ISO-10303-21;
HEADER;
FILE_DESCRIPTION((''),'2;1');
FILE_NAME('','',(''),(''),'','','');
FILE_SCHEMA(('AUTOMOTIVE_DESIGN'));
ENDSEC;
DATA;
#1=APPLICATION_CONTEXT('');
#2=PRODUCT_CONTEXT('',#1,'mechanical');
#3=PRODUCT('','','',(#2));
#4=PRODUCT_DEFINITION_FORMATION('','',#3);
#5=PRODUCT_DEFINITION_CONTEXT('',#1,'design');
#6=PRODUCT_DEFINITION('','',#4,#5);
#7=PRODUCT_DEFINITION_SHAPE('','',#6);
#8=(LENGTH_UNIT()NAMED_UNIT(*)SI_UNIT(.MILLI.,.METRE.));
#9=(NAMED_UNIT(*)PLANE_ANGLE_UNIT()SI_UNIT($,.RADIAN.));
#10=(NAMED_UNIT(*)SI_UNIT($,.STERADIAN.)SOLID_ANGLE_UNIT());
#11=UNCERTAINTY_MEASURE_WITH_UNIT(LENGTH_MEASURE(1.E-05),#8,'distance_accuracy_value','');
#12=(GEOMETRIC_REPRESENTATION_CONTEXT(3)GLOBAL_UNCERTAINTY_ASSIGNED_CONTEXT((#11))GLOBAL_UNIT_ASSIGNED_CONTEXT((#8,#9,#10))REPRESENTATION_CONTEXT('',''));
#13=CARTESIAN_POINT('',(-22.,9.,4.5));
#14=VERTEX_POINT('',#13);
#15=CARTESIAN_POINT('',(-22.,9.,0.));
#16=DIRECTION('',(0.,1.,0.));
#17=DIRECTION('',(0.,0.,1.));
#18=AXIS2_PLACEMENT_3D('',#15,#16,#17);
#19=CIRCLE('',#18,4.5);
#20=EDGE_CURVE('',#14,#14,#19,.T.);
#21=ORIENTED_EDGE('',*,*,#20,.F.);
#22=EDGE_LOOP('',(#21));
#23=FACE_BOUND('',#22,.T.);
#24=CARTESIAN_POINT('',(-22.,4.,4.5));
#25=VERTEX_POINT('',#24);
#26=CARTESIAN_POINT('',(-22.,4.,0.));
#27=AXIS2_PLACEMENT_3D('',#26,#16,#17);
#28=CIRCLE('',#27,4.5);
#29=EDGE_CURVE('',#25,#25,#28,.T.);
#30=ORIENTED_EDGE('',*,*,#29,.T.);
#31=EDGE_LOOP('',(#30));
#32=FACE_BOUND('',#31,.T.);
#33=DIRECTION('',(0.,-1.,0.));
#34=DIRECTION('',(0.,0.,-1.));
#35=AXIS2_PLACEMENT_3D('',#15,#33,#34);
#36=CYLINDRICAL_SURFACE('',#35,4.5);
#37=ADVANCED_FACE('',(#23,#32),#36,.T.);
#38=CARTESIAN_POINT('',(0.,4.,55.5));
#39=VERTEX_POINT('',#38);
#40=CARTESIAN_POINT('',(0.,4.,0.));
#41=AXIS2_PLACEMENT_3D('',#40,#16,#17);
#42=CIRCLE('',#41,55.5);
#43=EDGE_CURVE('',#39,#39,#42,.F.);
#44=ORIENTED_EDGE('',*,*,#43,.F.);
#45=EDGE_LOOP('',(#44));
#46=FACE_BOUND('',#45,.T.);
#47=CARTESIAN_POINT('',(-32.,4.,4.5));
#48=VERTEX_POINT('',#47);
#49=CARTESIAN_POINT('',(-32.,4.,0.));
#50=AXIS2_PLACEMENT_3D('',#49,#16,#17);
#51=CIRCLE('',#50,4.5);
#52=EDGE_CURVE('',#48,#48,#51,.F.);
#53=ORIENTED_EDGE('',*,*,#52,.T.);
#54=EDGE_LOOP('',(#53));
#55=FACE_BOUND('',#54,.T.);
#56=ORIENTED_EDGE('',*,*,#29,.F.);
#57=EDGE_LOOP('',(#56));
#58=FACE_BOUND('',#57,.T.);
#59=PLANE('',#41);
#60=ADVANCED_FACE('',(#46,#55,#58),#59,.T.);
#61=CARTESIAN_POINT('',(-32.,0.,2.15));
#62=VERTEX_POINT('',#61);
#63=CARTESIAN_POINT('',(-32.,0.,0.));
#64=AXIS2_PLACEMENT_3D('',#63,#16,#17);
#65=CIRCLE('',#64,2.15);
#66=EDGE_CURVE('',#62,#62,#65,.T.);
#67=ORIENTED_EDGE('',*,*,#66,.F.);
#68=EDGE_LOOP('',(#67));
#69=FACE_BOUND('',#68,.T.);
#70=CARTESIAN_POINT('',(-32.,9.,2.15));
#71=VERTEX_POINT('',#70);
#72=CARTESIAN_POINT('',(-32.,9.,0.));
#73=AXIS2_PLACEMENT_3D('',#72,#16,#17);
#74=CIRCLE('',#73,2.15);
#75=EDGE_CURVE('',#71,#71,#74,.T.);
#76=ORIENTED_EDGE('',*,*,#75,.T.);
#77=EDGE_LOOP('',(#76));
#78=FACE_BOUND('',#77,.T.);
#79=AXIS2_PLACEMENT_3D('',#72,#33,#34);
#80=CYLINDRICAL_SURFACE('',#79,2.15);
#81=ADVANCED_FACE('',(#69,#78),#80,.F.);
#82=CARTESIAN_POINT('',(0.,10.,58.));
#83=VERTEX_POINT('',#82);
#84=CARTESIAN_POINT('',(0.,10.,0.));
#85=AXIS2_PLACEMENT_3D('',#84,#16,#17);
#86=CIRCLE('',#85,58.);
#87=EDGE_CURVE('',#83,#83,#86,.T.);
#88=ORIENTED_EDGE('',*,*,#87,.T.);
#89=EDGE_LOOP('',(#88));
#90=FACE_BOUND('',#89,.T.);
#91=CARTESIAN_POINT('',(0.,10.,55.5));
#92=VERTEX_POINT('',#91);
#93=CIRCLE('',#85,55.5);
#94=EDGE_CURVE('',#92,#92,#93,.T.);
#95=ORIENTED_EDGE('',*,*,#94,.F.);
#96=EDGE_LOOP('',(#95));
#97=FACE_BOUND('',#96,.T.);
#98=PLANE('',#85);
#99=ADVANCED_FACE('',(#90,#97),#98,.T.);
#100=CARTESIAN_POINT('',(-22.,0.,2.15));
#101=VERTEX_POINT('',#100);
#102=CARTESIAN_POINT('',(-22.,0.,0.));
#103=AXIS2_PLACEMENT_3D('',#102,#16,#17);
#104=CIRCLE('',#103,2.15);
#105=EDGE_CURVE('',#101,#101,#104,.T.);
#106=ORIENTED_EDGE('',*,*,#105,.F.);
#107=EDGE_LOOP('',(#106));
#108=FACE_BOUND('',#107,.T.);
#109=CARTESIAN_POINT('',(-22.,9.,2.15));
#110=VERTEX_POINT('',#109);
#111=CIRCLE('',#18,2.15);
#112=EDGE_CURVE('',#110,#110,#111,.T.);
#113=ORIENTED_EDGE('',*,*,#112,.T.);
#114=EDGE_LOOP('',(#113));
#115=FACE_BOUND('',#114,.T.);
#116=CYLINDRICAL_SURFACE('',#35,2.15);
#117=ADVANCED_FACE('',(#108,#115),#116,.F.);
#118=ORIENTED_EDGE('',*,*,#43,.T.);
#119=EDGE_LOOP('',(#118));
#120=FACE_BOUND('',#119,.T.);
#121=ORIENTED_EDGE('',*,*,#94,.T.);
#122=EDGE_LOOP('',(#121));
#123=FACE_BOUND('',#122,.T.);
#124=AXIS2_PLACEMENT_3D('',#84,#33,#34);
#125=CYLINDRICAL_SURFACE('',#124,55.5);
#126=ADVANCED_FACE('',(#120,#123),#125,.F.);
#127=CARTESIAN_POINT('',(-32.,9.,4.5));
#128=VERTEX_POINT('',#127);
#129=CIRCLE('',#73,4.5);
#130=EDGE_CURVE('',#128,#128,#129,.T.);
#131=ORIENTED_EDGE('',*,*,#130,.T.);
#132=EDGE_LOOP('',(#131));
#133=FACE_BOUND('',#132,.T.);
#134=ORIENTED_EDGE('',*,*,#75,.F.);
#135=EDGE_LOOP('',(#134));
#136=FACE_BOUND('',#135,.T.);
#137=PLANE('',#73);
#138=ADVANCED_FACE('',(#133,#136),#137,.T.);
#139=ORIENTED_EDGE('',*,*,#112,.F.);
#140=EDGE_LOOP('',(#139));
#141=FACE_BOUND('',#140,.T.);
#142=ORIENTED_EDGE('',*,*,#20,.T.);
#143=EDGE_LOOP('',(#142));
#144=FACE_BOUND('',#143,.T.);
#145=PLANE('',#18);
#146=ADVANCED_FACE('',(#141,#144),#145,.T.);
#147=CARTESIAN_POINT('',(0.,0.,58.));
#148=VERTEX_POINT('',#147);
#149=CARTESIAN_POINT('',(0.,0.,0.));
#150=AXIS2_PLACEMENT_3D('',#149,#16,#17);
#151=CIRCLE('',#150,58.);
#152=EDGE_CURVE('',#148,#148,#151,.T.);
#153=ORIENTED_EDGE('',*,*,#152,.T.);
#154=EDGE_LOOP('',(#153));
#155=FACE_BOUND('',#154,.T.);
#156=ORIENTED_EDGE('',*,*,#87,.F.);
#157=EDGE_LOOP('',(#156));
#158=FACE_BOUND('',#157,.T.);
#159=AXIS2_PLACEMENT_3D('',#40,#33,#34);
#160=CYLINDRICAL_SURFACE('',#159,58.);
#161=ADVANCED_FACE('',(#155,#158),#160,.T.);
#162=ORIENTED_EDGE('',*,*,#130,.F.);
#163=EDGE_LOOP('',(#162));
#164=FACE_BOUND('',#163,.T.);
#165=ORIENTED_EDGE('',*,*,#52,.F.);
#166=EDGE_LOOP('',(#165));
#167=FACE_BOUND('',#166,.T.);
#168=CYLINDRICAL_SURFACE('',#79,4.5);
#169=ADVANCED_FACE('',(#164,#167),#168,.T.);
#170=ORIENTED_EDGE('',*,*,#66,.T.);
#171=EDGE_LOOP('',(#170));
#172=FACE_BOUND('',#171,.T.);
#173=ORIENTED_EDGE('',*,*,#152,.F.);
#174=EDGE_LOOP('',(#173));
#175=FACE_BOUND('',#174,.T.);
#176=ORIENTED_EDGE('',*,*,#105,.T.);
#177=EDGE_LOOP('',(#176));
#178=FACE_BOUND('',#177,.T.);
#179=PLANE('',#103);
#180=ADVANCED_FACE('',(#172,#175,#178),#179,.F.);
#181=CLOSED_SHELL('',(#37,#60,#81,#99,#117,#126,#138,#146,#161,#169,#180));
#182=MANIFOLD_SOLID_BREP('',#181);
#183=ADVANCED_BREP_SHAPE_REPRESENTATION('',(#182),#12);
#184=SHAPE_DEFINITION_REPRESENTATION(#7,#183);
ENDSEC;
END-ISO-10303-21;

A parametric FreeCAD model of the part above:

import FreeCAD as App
import Part
import Sketcher

V = App.Vector

doc = App.newDocument("Part")
body = doc.addObject("PartDesign::Body", "Body")

# Sketch on XZ plane
sketch1 = body.newObject("Sketcher::SketchObject", "Sketch")
sketch1.AttachmentSupport = (doc.getObject("XZ_Plane"), [""])
sketch1.MapMode = "FlatFace"
sketch1.addGeometry(Part.Circle(V(-22, 0, 0), V(0, 0, 1), 4.5), False)
sketch1.addConstraint(Sketcher.Constraint("PointOnObject", 0, 3, -1))
sketch1.addConstraint(Sketcher.Constraint("Diameter", 0, 9.0))
sketch1.addConstraint(Sketcher.Constraint("DistanceX", 0, 3, -1, 1, 22.0))
pad1 = body.newObject("PartDesign::Pad", "Pad")
pad1.Profile = sketch1
pad1.Length = 9
pad1.Reversed = True

# Sketch on XZ plane
sketch2 = body.newObject("Sketcher::SketchObject", "Sketch001")
sketch2.AttachmentSupport = (doc.getObject("XZ_Plane"), [""])
sketch2.MapMode = "FlatFace"
sketch2.addGeometry(Part.Circle(V(0, 0, 0), V(0, 0, 1), 58), False)
sketch2.addConstraint(Sketcher.Constraint("Coincident", 0, 3, -1, 1))
sketch2.addConstraint(Sketcher.Constraint("Diameter", 0, 116.0))
pad2 = body.newObject("PartDesign::Pad", "Pad001")
pad2.Profile = sketch2
pad2.Length = 4
pad2.Reversed = True

# Sketch on XZ plane
sketch3 = body.newObject("Sketcher::SketchObject", "Sketch002")
sketch3.AttachmentSupport = (doc.getObject("XZ_Plane"), [""])
sketch3.MapMode = "FlatFace"
sketch3.addGeometry(Part.Circle(V(-32, 0, 0), V(0, 0, 1), 4.5), False)
sketch3.addConstraint(Sketcher.Constraint("PointOnObject", 0, 3, -1))
sketch3.addConstraint(Sketcher.Constraint("Diameter", 0, 9.0))
sketch3.addConstraint(Sketcher.Constraint("DistanceX", 0, 3, -1, 1, 32.0))
pad3 = body.newObject("PartDesign::Pad", "Pad002")
pad3.Profile = sketch3
pad3.Length = 9
pad3.Reversed = True

# Sketch on XZ plane
sketch4 = body.newObject("Sketcher::SketchObject", "Sketch003")
sketch4.AttachmentSupport = (doc.getObject("XZ_Plane"), [""])
sketch4.MapMode = "FlatFace"
sketch4.addGeometry(Part.Circle(V(0, 0, 0), V(0, 0, 1), 58), False)
sketch4.addGeometry(Part.Circle(V(0, 0, 0), V(0, 0, 1), 55.5), False)
sketch4.addConstraint(Sketcher.Constraint("Coincident", 0, 3, -1, 1))
sketch4.addConstraint(Sketcher.Constraint("Coincident", 1, 3, -1, 1))
sketch4.addConstraint(Sketcher.Constraint("Diameter", 0, 116.0))
sketch4.addConstraint(Sketcher.Constraint("Diameter", 1, 111.0))
pad4 = body.newObject("PartDesign::Pad", "Pad003")
pad4.Profile = sketch4
pad4.Length = 10
pad4.Reversed = True

# Sketch on XZ plane
sketch5 = body.newObject("Sketcher::SketchObject", "Sketch004")
sketch5.AttachmentSupport = (doc.getObject("XZ_Plane"), [""])
sketch5.MapMode = "FlatFace"
sketch5.addGeometry(Part.Circle(V(-22, 0, 0), V(0, 0, 1), 2.15), False)
sketch5.addGeometry(Part.Circle(V(-32, 0, 0), V(0, 0, 1), 2.15), False)
sketch5.addConstraint(Sketcher.Constraint("Equal", 0, 1))
sketch5.addConstraint(Sketcher.Constraint("PointOnObject", 0, 3, -1))
sketch5.addConstraint(Sketcher.Constraint("PointOnObject", 1, 3, -1))
sketch5.addConstraint(Sketcher.Constraint("Diameter", 0, 4.3))
sketch5.addConstraint(Sketcher.Constraint("DistanceX", 0, 3, -1, 1, 22.0))
sketch5.addConstraint(Sketcher.Constraint("DistanceX", 1, 3, -1, 1, 32.0))
pocket1 = body.newObject("PartDesign::Pocket", "Pocket")
pocket1.Profile = sketch5
pocket1.Length = 9

doc.recompute()
